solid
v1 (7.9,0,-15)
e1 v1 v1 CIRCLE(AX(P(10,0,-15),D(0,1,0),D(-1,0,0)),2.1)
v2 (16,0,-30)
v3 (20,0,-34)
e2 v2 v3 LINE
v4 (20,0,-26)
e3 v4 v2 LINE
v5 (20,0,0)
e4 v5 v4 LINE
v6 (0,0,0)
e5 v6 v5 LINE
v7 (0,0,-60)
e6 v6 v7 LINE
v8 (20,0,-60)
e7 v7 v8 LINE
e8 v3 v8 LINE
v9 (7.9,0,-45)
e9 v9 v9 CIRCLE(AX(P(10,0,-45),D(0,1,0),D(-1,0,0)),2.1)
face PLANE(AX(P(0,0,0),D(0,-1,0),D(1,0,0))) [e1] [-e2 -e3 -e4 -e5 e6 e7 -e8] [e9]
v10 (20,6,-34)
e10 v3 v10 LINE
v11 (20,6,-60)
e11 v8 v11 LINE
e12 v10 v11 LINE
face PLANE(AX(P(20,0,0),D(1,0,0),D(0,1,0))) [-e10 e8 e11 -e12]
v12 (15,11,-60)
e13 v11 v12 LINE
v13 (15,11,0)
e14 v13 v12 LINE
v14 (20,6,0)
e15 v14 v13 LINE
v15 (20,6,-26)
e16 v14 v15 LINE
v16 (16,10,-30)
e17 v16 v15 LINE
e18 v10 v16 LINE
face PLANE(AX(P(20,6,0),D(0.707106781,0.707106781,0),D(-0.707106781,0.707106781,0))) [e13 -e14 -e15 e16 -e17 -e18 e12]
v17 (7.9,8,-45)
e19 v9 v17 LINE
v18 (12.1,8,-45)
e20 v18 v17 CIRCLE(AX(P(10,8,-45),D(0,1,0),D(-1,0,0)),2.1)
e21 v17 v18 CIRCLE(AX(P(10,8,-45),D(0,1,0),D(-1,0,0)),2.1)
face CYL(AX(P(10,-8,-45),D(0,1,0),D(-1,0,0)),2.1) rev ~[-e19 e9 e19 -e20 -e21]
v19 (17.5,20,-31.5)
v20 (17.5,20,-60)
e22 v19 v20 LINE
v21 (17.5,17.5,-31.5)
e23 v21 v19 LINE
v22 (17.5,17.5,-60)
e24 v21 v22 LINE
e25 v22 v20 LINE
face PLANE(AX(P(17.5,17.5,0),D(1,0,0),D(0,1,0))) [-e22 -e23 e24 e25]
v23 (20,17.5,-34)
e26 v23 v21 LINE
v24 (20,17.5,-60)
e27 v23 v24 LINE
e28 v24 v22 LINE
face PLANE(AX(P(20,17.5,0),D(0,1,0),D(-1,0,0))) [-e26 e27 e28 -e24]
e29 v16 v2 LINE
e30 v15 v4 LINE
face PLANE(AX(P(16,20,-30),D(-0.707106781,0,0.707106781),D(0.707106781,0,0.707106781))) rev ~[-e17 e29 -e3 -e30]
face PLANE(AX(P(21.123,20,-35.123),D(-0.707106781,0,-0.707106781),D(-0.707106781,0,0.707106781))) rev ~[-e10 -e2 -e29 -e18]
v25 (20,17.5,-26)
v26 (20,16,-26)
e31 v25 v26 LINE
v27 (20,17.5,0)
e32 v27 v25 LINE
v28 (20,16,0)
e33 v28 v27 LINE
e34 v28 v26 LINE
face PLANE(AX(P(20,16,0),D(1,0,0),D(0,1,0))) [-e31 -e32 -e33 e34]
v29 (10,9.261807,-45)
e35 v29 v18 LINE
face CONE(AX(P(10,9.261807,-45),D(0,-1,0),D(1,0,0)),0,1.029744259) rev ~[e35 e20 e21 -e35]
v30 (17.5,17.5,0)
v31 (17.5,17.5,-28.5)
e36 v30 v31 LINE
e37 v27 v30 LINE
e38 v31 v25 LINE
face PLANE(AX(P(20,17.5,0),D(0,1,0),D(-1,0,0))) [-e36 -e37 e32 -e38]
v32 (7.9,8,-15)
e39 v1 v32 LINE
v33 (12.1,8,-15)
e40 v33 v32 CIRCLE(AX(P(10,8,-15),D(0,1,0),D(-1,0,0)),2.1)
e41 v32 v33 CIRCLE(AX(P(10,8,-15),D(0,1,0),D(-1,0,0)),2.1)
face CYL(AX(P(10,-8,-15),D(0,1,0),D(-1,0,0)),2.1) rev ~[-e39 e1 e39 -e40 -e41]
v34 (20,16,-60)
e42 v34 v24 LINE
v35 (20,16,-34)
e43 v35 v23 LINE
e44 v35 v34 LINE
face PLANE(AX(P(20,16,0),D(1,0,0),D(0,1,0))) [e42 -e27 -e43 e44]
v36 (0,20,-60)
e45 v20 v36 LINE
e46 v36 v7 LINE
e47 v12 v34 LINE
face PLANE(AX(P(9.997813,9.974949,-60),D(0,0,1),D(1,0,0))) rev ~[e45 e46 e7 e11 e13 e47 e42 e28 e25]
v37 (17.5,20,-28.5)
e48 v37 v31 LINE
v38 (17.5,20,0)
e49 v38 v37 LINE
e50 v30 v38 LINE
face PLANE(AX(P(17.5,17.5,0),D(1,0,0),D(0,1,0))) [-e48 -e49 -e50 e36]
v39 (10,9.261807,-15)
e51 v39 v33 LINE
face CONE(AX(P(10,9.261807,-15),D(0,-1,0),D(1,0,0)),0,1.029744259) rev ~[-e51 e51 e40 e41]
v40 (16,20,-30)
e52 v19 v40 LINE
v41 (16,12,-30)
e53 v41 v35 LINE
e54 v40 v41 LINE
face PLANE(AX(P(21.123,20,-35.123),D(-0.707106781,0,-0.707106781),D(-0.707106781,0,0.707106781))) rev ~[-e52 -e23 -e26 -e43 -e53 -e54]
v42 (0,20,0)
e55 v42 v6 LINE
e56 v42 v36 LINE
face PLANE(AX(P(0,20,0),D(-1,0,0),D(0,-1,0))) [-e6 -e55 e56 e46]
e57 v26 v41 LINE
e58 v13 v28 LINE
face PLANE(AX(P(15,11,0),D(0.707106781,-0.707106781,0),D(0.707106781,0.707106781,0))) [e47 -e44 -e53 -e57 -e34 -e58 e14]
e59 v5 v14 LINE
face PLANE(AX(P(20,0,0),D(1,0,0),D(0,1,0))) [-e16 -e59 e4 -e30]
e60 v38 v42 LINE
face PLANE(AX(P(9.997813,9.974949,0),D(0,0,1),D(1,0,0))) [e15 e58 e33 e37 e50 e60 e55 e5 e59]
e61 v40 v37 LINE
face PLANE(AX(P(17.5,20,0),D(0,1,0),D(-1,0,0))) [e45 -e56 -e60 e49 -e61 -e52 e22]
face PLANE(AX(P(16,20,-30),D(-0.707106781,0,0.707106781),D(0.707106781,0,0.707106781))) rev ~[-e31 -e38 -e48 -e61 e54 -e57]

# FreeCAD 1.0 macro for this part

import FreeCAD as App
import Part
import Sketcher

V = App.Vector

doc = App.newDocument("Part")
body = doc.addObject("PartDesign::Body", "Body")

# Sketch on XY plane
sketch1 = body.newObject("Sketcher::SketchObject", "Sketch")
sketch1.AttachmentSupport = (doc.getObject("XY_Plane"), [""])
sketch1.MapMode = "FlatFace"
sketch1.addGeometry([
    Part.LineSegment(V(0, 20, 0), V(0, 0, 0)),  # 0
    Part.LineSegment(V(0, 0, 0), V(20, 0, 0)),  # 1
    Part.LineSegment(V(20, 0, 0), V(20, 6, 0)),  # 2
    Part.LineSegment(V(20, 6, 0), V(15, 11, 0)),  # 3
    Part.LineSegment(V(15, 11, 0), V(20, 16, 0)),  # 4
    Part.LineSegment(V(20, 16, 0), V(20, 17.5, 0)),  # 5
    Part.LineSegment(V(20, 17.5, 0), V(17.5, 17.5, 0)),  # 6
    Part.LineSegment(V(17.5, 17.5, 0), V(17.5, 20, 0)),  # 7
    Part.LineSegment(V(17.5, 20, 0), V(0, 20, 0)),  # 8
], False)
sketch1.addConstraint([
    Sketcher.Constraint("Coincident", 0, 2, 1, 1),
    Sketcher.Constraint("Coincident", 1, 2, 2, 1),
    Sketcher.Constraint("Coincident", 2, 2, 3, 1),
    Sketcher.Constraint("Coincident", 3, 2, 4, 1),
    Sketcher.Constraint("Coincident", 4, 2, 5, 1),
    Sketcher.Constraint("Coincident", 5, 2, 6, 1),
    Sketcher.Constraint("Coincident", 6, 2, 7, 1),
    Sketcher.Constraint("Coincident", 7, 2, 8, 1),
    Sketcher.Constraint("Coincident", 8, 2, 0, 1),
    Sketcher.Constraint("Vertical", 0),
    Sketcher.Constraint("Horizontal", 1),
    Sketcher.Constraint("Vertical", 2),
    Sketcher.Constraint("Vertical", 5),
    Sketcher.Constraint("Horizontal", 6),
    Sketcher.Constraint("Vertical", 7),
    Sketcher.Constraint("Horizontal", 8),
    Sketcher.Constraint("Coincident", 0, 2, -1, 1),
    Sketcher.Constraint("Perpendicular", 3, 4),
    Sketcher.Constraint("Vertical", 2, 2, 4, 2),
    Sketcher.Constraint("Equal", 1, 0),
    Sketcher.Constraint("Equal", 6, 7),
    Sketcher.Constraint("Equal", 3, 4),
    Sketcher.Constraint("DistanceX", 1, 1, 1, 2, 20.0),
    Sketcher.Constraint("DistanceY", 2, 1, 2, 2, 6.0),
    Sketcher.Constraint("DistanceX", 6, 2, 6, 1, 2.5),
    Sketcher.Constraint("DistanceY", 5, 1, 5, 2, 1.5),
])
pad1 = body.newObject("PartDesign::Pad", "Pad")
pad1.Profile = sketch1
pad1.Length = 60
pad1.Reversed = True

# Sketch on XZ plane
sketch2 = body.newObject("Sketcher::SketchObject", "Sketch001")
sketch2.AttachmentSupport = (doc.getObject("XZ_Plane"), [""])
sketch2.MapMode = "FlatFace"
sketch2.AttachmentOffset = App.Placement(V(0, 0, -20), App.Rotation())
sketch2.addGeometry([
    Part.LineSegment(V(21, -25, 0), V(21, -35, 0)),
    Part.LineSegment(V(21, -35, 0), V(16, -30, 0)),
    Part.LineSegment(V(16, -30, 0), V(21, -25, 0)),
], False)
sketch2.addConstraint([
    Sketcher.Constraint("Coincident", 0, 2, 1, 1),
    Sketcher.Constraint("Coincident", 1, 2, 2, 1),
    Sketcher.Constraint("Coincident", 2, 2, 0, 1),
    Sketcher.Constraint("Vertical", 0),
    Sketcher.Constraint("Perpendicular", 1, 2),
    Sketcher.Constraint("Equal", 1, 2),
    Sketcher.Constraint("DistanceX", -1, 1, 1, 2, 16.0),
    Sketcher.Constraint("DistanceY", 1, 2, -1, 1, 30.0),
    Sketcher.Constraint("DistanceY", 0, 2, 0, 1, 10.246),
])
pocket1 = body.newObject("PartDesign::Pocket", "Pocket")
pocket1.Profile = sketch2
pocket1.Length = 25
pocket1.Reversed = True

# Sketch on XZ plane
sketch3 = body.newObject("Sketcher::SketchObject", "Sketch002")
sketch3.AttachmentSupport = (doc.getObject("XZ_Plane"), [""])
sketch3.MapMode = "FlatFace"
sketch3.addGeometry([
    Part.Circle(V(10, -15, 0), V(0, 0, 1), 2.1),
    Part.Circle(V(10, -45, 0), V(0, 0, 1), 2.1),
], False)
sketch3.addConstraint([
    Sketcher.Constraint("Equal", 0, 1),
    Sketcher.Constraint("Vertical", 0, 3, 1, 3),
    Sketcher.Constraint("Diameter", 0, 4.2),
    Sketcher.Constraint("DistanceX", -1, 1, 0, 3, 10.0),
    Sketcher.Constraint("DistanceY", 0, 3, -1, 1, 15.0),
    Sketcher.Constraint("DistanceY", 1, 3, -1, 1, 45.0),
])
doc.recompute()
hole = body.newObject("PartDesign::Hole", "Hole")
hole.Profile = sketch3
hole.ThreadType = "None"
hole.Diameter = 4.2
hole.DepthType = "Dimension"
hole.Depth = 8
hole.DrillPoint = "Angled"
hole.DrillPointAngle = 118

doc.recompute()
